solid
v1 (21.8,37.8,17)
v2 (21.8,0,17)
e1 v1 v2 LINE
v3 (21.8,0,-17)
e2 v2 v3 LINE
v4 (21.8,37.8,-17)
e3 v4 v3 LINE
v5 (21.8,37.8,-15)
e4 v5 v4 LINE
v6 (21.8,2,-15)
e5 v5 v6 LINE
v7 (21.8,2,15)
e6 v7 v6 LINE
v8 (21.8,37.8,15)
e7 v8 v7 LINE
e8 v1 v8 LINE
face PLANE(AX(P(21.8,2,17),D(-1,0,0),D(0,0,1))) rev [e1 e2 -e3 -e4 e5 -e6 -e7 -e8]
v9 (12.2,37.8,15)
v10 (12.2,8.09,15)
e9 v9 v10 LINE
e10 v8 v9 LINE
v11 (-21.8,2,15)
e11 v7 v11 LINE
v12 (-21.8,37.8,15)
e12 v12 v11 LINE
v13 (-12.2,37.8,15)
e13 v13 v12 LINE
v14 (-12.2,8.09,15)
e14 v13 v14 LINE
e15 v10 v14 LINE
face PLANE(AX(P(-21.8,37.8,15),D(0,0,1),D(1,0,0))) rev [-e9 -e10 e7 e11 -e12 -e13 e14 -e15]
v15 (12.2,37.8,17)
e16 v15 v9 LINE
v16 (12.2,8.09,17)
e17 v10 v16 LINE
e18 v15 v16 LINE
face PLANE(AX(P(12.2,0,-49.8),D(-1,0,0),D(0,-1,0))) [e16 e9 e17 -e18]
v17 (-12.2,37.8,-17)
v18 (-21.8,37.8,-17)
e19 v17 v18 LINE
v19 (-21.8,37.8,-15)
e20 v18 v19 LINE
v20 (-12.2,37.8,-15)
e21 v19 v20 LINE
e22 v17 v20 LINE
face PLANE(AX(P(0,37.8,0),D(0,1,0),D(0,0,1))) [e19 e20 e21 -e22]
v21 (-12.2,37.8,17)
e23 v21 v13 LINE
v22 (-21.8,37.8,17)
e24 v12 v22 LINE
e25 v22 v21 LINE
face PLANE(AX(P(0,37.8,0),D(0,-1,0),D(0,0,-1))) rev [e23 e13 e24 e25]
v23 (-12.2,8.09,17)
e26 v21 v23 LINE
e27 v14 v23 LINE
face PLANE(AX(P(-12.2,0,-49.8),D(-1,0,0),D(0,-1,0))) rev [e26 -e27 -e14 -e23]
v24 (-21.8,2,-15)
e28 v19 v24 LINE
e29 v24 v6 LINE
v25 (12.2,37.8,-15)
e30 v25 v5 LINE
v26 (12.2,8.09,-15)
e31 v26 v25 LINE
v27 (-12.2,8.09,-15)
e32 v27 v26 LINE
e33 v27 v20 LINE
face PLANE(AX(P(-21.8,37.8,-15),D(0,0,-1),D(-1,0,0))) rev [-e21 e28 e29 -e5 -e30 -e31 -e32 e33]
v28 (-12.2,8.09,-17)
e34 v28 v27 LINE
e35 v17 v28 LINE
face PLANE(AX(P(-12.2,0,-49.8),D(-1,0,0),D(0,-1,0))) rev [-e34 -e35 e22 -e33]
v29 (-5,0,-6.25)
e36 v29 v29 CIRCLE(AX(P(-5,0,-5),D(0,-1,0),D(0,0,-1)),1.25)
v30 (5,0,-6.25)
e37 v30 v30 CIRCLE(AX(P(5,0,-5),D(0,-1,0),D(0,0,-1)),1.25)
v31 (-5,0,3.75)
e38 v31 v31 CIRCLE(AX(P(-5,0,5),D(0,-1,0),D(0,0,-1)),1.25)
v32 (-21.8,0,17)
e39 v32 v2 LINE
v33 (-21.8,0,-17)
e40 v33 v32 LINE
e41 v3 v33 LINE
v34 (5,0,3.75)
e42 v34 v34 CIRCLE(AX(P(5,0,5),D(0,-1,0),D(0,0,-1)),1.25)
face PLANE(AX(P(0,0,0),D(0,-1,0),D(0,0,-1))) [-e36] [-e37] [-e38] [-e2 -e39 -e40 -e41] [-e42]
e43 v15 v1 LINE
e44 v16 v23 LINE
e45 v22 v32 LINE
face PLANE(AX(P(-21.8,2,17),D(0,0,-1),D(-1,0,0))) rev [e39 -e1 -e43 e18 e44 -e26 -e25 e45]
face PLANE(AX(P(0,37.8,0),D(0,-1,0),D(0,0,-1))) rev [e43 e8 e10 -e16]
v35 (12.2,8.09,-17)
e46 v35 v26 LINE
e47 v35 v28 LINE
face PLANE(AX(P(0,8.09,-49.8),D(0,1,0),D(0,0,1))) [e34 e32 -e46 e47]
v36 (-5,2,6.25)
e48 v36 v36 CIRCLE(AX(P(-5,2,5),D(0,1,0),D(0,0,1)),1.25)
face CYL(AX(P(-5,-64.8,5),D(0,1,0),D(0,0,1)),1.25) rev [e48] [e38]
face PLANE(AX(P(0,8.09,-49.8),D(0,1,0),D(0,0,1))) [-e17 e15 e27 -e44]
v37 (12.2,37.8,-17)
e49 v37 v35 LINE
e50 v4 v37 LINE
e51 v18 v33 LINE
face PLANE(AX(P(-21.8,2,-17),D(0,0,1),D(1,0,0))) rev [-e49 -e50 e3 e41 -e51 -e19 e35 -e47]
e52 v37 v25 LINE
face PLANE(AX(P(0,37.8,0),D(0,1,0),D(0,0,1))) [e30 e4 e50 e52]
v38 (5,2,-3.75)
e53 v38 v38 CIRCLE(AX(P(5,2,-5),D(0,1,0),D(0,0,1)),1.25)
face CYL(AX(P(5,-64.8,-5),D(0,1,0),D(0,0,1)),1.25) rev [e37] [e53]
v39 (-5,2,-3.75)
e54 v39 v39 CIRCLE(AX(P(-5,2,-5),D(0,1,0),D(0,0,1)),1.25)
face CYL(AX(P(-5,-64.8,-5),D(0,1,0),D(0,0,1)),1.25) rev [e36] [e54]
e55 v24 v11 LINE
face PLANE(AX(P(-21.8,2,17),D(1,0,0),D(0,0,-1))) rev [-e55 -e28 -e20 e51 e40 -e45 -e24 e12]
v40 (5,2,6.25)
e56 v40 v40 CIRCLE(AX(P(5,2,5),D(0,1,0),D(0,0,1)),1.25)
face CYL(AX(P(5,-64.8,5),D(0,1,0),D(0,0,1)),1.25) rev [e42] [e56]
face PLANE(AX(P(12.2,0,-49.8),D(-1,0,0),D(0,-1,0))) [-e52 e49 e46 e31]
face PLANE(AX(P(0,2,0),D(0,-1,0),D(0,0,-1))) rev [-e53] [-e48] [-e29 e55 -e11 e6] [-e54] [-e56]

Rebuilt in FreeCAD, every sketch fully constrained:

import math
import FreeCAD as App
import Part
import Sketcher
from FreeCAD import Vector


def add_polygon(sketch, points):
    """Adds a closed chain of lines whose ends are joined by coincident constraints."""
    first, n = sketch.GeometryCount, len(points)
    for a, b in zip(points, points[1:] + points[:1]):
        sketch.addGeometry(Part.LineSegment(App.Vector(*a, 0), App.Vector(*b, 0)), False)
    for i in range(n):
        sketch.addConstraint(Sketcher.Constraint("Coincident", first + i, 2, first + (i + 1) % n, 1))

doc = App.newDocument("Part")
body = doc.addObject("PartDesign::Body", "Body")

sketch1 = body.newObject("Sketcher::SketchObject", "Sketch")
sketch1.AttachmentSupport = (doc.getObject("XZ_Plane"), [""])
sketch1.MapMode = "FlatFace"
add_polygon(sketch1, [(-22, -17), (-22, 17), (22, 17), (22, -17)])
sketch1.addConstraint(Sketcher.Constraint("Vertical", 0))
sketch1.addConstraint(Sketcher.Constraint("Horizontal", 1))
sketch1.addConstraint(Sketcher.Constraint("Vertical", 2))
sketch1.addConstraint(Sketcher.Constraint("Horizontal", 3))
sketch1.addConstraint(Sketcher.Constraint("Symmetric", 0, 2, 2, 2, -1, 1))
sketch1.addConstraint(Sketcher.Constraint("DistanceY", 0, 1, 0, 2, 34.0))
sketch1.addConstraint(Sketcher.Constraint("DistanceX", 1, 1, 1, 2, 43.6))
pad1 = body.newObject("PartDesign::Pad", "Pad")
pad1.Profile = sketch1
pad1.Length = 2
pad1.Reversed = True

sketch2 = body.newObject("Sketcher::SketchObject", "Sketch001")
sketch2.AttachmentSupport = (doc.getObject("XZ_Plane"), [""])
sketch2.MapMode = "FlatFace"
sketch2.AttachmentOffset = App.Placement(Vector(0, 0, -2), App.Rotation())
add_polygon(sketch2, [(-21.8, -17), (-21.8, -15), (21.8, -15), (21.8, -17)])
add_polygon(sketch2, [(-21.8, 15), (-21.8, 17), (21.8, 17), (21.8, 15)])
sketch2.addConstraint(Sketcher.Constraint("Vertical", 0))
sketch2.addConstraint(Sketcher.Constraint("Horizontal", 1))
sketch2.addConstraint(Sketcher.Constraint("Vertical", 2))
sketch2.addConstraint(Sketcher.Constraint("Horizontal", 3))
sketch2.addConstraint(Sketcher.Constraint("Vertical", 4))
sketch2.addConstraint(Sketcher.Constraint("Horizontal", 5))
sketch2.addConstraint(Sketcher.Constraint("Vertical", 6))
sketch2.addConstraint(Sketcher.Constraint("Horizontal", 7))
sketch2.addConstraint(Sketcher.Constraint("Symmetric", 2, 2, 4, 2, -1, 1))
sketch2.addConstraint(Sketcher.Constraint("Symmetric", 0, 2, 6, 2, -1, 1))
sketch2.addConstraint(Sketcher.Constraint("Vertical", 3, 2, 4, 2))
sketch2.addConstraint(Sketcher.Constraint("DistanceY", 0, 1, 0, 2, 2.0))
sketch2.addConstraint(Sketcher.Constraint("DistanceX", 1, 1, 1, 2, 43.6))
sketch2.addConstraint(Sketcher.Constraint("DistanceY", 0, 2, -1, 1, 15.0))
pad2 = body.newObject("PartDesign::Pad", "Pad001")
pad2.Profile = sketch2
pad2.Length = 35.8
pad2.Reversed = True

sketch3 = body.newObject("Sketcher::SketchObject", "Sketch002")
sketch3.AttachmentSupport = (doc.getObject("XY_Plane"), [""])
sketch3.MapMode = "FlatFace"
sketch3.AttachmentOffset = App.Placement(Vector(0, 0, 17), App.Rotation())
add_polygon(sketch3, [(-12, 38), (-12, 8), (12, 8), (12, 38)])
sketch3.addConstraint(Sketcher.Constraint("Vertical", 0))
sketch3.addConstraint(Sketcher.Constraint("Horizontal", 1))
sketch3.addConstraint(Sketcher.Constraint("Vertical", 2))
sketch3.addConstraint(Sketcher.Constraint("Horizontal", 3))
sketch3.addConstraint(Sketcher.Constraint("DistanceX", 1, 1, 1, 2, 24.4))
sketch3.addConstraint(Sketcher.Constraint("DistanceY", 0, 2, 0, 1, 29.71))
sketch3.addConstraint(Sketcher.Constraint("DistanceX", 0, 2, -1, 1, 12.2))
sketch3.addConstraint(Sketcher.Constraint("DistanceY", -1, 1, 2, 2, 37.8))
pocket1 = body.newObject("PartDesign::Pocket", "Pocket")
pocket1.Profile = sketch3
pocket1.Length = 66.8

sketch4 = body.newObject("Sketcher::SketchObject", "Sketch003")
sketch4.AttachmentSupport = (doc.getObject("XZ_Plane"), [""])
sketch4.MapMode = "FlatFace"
sketch4.AttachmentOffset = App.Placement(Vector(0, 0, -2), App.Rotation())
sketch4.addGeometry(Part.ArcOfCircle(Part.Circle(Vector(-5, -5, 0), Vector(0, 0, 1), 1.2), math.radians(90), math.radians(360)), False)
sketch4.addGeometry(Part.ArcOfCircle(Part.Circle(Vector(-5, -5, 0), Vector(0, 0, 1), 1.3), math.radians(0), math.radians(90)), False)
sketch4.addGeometry(Part.ArcOfCircle(Part.Circle(Vector(5, -5, 0), Vector(0, 0, 1), 1.3), math.radians(90), math.radians(180)), False)
sketch4.addGeometry(Part.ArcOfCircle(Part.Circle(Vector(5, -5, 0), Vector(0, 0, 1), 1.3), math.radians(0), math.radians(90)), False)
sketch4.addGeometry(Part.ArcOfCircle(Part.Circle(Vector(5, -5, 0), Vector(0, 0, 1), 1.2), math.radians(180), math.radians(360)), False)
sketch4.addGeometry(Part.ArcOfCircle(Part.Circle(Vector(-5, 5, 0), Vector(0, 0, 1), 1.3), math.radians(-90), math.radians(0)), False)
sketch4.addGeometry(Part.ArcOfCircle(Part.Circle(Vector(-5, 5, 0), Vector(0, 0, 1), 1.2), math.radians(0), math.radians(270)), False)
sketch4.addGeometry(Part.ArcOfCircle(Part.Circle(Vector(5, 5, 0), Vector(0, 0, 1), 1.3), math.radians(-180), math.radians(-90)), False)
sketch4.addGeometry(Part.ArcOfCircle(Part.Circle(Vector(5, 5, 0), Vector(0, 0, 1), 1.2), math.radians(0), math.radians(180)), False)
sketch4.addGeometry(Part.ArcOfCircle(Part.Circle(Vector(5, 5, 0), Vector(0, 0, 1), 1.3), math.radians(-90), math.radians(0)), False)
sketch4.addConstraint(Sketcher.Constraint("Tangent", 0, 1, 1, 2))
sketch4.addConstraint(Sketcher.Constraint("Coincident", 1, 1, 0, 2))
sketch4.addConstraint(Sketcher.Constraint("Tangent", 2, 1, 3, 2))
sketch4.addConstraint(Sketcher.Constraint("Tangent", 3, 1, 4, 2))
sketch4.addConstraint(Sketcher.Constraint("Tangent", 4, 1, 2, 2))
sketch4.addConstraint(Sketcher.Constraint("Tangent", 5, 1, 6, 2))
sketch4.addConstraint(Sketcher.Constraint("Coincident", 6, 1, 5, 2))
sketch4.addConstraint(Sketcher.Constraint("Tangent", 7, 1, 8, 2))
sketch4.addConstraint(Sketcher.Constraint("Tangent", 8, 1, 9, 2))
sketch4.addConstraint(Sketcher.Constraint("Tangent", 9, 1, 7, 2))
sketch4.addConstraint(Sketcher.Constraint("Equal", 1, 2))
sketch4.addConstraint(Sketcher.Constraint("Equal", 4, 5))
sketch4.addConstraint(Sketcher.Constraint("Equal", 6, 7))
sketch4.addConstraint(Sketcher.Constraint("Symmetric", 2, 3, 5, 3, -1, 1))
sketch4.addConstraint(Sketcher.Constraint("Symmetric", 0, 3, 7, 3, -1, 1))
sketch4.addConstraint(Sketcher.Constraint("Symmetric", 0, 3, 2, 3, -2))
sketch4.addConstraint(Sketcher.Constraint("Horizontal", 4, 3, 1, 1))
sketch4.addConstraint(Sketcher.Constraint("Horizontal", 1, 1, 3, 1))
sketch4.addConstraint(Sketcher.Constraint("Horizontal", 3, 1, 4, 1))
sketch4.addConstraint(Sketcher.Constraint("Horizontal", 9, 3, 6, 1))
sketch4.addConstraint(Sketcher.Constraint("Horizontal", 6, 1, 7, 1))
sketch4.addConstraint(Sketcher.Constraint("Horizontal", 7, 1, 8, 1))
sketch4.addConstraint(Sketcher.Constraint("Vertical", 6, 3, 0, 1))
sketch4.addConstraint(Sketcher.Constraint("Vertical", 9, 3, 2, 1))
sketch4.addConstraint(Sketcher.Constraint("Vertical", 0, 1, 5, 1))
sketch4.addConstraint(Sketcher.Constraint("Vertical", 2, 1, 9, 1))
sketch4.addConstraint(Sketcher.Constraint("Radius", 0, 1.25))
sketch4.addConstraint(Sketcher.Constraint("DistanceX", 0, 3, -1, 1, 5.0))
sketch4.addConstraint(Sketcher.Constraint("DistanceY", 0, 3, -1, 1, 5.0))
pocket2 = body.newObject("PartDesign::Pocket", "Pocket001")
pocket2.Profile = sketch4
pocket2.Length = 66.8
pocket2.Reversed = True

doc.recompute()
